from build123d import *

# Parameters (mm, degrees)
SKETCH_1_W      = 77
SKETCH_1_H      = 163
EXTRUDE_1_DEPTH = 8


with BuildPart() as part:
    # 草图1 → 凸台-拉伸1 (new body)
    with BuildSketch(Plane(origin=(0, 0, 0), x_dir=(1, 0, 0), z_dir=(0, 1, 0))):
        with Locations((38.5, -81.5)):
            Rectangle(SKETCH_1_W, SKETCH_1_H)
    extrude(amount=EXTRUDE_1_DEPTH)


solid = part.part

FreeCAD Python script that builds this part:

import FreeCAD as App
import Part
import Sketcher
Q = App.Units.Quantity

doc = App.newDocument("Part")
body = doc.addObject("PartDesign::Body", "Body")

# Sketch on XZ plane
sketch1 = body.newObject("Sketcher::SketchObject", "Sketch")
sketch1.AttachmentSupport = (doc.getObject("XZ_Plane"), [""])
sketch1.MapMode = "FlatFace"
sketch1.addGeometry([
    Part.LineSegment(App.Vector(0, 0, 0), App.Vector(0, 163, 0)),
    Part.LineSegment(App.Vector(0, 163, 0), App.Vector(77, 163, 0)),
    Part.LineSegment(App.Vector(77, 163, 0), App.Vector(77, 0, 0)),
    Part.LineSegment(App.Vector(77, 0, 0), App.Vector(0, 0, 0)),
], False)
sketch1.addConstraint([
    Sketcher.Constraint("Coincident", 0, 2, 1, 1),
    Sketcher.Constraint("Coincident", 1, 2, 2, 1),
    Sketcher.Constraint("Coincident", 2, 2, 3, 1),
    Sketcher.Constraint("Coincident", 3, 2, 0, 1),
    Sketcher.Constraint("Vertical", 0),
    Sketcher.Constraint("Horizontal", 1),
    Sketcher.Constraint("Vertical", 2),
    Sketcher.Constraint("Horizontal", 3),
    Sketcher.Constraint("Coincident", 3, 2, -1, 1),
    Sketcher.Constraint("DistanceX", 1, 1, 1, 2, Q("77 mm")),
    Sketcher.Constraint("DistanceY", 0, 1, 0, 2, Q("163 mm")),
])
pad1 = body.newObject("PartDesign::Pad", "Pad")
pad1.Profile = sketch1
pad1.Length = 8
pad1.Reversed = True

doc.recompute()
